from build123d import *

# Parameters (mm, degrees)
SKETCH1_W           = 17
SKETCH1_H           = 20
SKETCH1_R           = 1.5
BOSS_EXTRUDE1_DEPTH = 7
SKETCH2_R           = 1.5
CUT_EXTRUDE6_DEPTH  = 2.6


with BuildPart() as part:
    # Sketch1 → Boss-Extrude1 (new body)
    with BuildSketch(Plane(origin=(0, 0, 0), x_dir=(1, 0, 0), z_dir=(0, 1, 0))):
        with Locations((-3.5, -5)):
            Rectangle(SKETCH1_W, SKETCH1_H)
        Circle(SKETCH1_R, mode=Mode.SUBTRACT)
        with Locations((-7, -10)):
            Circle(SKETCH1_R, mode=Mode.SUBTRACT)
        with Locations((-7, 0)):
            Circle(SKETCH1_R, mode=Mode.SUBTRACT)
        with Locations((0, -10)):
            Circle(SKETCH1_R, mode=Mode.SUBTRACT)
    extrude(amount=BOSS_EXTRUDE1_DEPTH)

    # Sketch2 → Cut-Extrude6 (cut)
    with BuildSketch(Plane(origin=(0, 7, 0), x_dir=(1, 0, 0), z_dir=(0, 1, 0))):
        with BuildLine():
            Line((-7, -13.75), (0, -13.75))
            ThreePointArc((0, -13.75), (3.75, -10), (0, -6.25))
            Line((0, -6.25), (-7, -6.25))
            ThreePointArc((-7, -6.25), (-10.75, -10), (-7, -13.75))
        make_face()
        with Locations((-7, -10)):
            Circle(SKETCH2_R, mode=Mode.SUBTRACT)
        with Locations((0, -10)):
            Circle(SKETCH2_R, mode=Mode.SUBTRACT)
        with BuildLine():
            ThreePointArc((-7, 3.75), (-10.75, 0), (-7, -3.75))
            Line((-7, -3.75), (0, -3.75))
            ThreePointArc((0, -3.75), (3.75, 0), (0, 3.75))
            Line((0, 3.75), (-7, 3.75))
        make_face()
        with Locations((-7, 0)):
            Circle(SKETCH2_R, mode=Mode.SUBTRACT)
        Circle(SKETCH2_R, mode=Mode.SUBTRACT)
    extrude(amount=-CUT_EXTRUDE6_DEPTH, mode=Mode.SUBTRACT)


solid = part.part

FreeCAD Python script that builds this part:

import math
import FreeCAD as App
import Part
import Sketcher
from FreeCAD import Vector

doc = App.newDocument("Part")
body = doc.addObject("PartDesign::Body", "Body")

sketch1 = body.newObject("Sketcher::SketchObject", "Sketch")
sketch1.AttachmentSupport = (doc.getObject("XZ_Plane"), [""])
sketch1.MapMode = "FlatFace"
sketch1.addGeometry([
    Part.LineSegment(Vector(-12, -5, 0), Vector(-12, 15, 0)),
    Part.LineSegment(Vector(-12, 15, 0), Vector(5, 15, 0)),
    Part.LineSegment(Vector(5, 15, 0), Vector(5, -5, 0)),
    Part.LineSegment(Vector(5, -5, 0), Vector(-12, -5, 0)),
    Part.Circle(Vector(-7, 10, 0), Vector(0, 0, 1), 1.5),
    Part.Circle(Vector(0, 10, 0), Vector(0, 0, 1), 1.5),
    Part.Circle(Vector(-7, 0, 0), Vector(0, 0, 1), 1.5),
    Part.Circle(Vector(0, 0, 0), Vector(0, 0, 1), 1.5),
], False)
sketch1.addConstraint([
    Sketcher.Constraint("Coincident", 0, 2, 1, 1),
    Sketcher.Constraint("Coincident", 1, 2, 2, 1),
    Sketcher.Constraint("Coincident", 2, 2, 3, 1),
    Sketcher.Constraint("Coincident", 3, 2, 0, 1),
    Sketcher.Constraint("Vertical", 0),
    Sketcher.Constraint("Horizontal", 1),
    Sketcher.Constraint("Vertical", 2),
    Sketcher.Constraint("Horizontal", 3),
    Sketcher.Constraint("Coincident", 7, 3, -1, 1),
    Sketcher.Constraint("Equal", 4, 5),
    Sketcher.Constraint("Equal", 5, 6),
    Sketcher.Constraint("Equal", 6, 7),
    Sketcher.Constraint("PointOnObject", 5, 3, -2),
    Sketcher.Constraint("PointOnObject", 6, 3, -1),
    Sketcher.Constraint("Horizontal", 4, 3, 5, 3),
    Sketcher.Constraint("Vertical", 4, 3, 6, 3),
    Sketcher.Constraint("Diameter", 4, 3.0),
    Sketcher.Constraint("DistanceX", 1, 1, 1, 2, 17.0),
    Sketcher.Constraint("DistanceY", 0, 1, 0, 2, 20.0),
    Sketcher.Constraint("DistanceX", 4, 3, -1, 1, 7.0),
    Sketcher.Constraint("DistanceY", -1, 1, 4, 3, 10.0),
    Sketcher.Constraint("DistanceX", 0, 2, -1, 1, 12.0),
    Sketcher.Constraint("DistanceY", -1, 1, 0, 2, 15.0),
])
pad1 = body.newObject("PartDesign::Pad", "Pad")
pad1.Profile = sketch1
pad1.Length = 7
pad1.Reversed = True

sketch2 = body.newObject("Sketcher::SketchObject", "Sketch001")
sketch2.AttachmentSupport = (doc.getObject("XZ_Plane"), [""])
sketch2.MapMode = "FlatFace"
sketch2.AttachmentOffset = App.Placement(Vector(0, 0, -7), App.Rotation())
sketch2.addGeometry([
    Part.LineSegment(Vector(-7, 13.8, 0), Vector(0, 13.8, 0)),
    Part.ArcOfCircle(Part.Circle(Vector(0, 10, 0), Vector(0, 0, 1), 3.8), math.radians(-90), math.radians(90)),
    Part.LineSegment(Vector(0, 6.2, 0), Vector(-7, 6.2, 0)),
    Part.ArcOfCircle(Part.Circle(Vector(-7, 10, 0), Vector(0, 0, 1), 3.8), math.radians(90), math.radians(270)),
    Part.Circle(Vector(-7, 10, 0), Vector(0, 0, 1), 1.5),
    Part.Circle(Vector(0, 10, 0), Vector(0, 0, 1), 1.5),
    Part.ArcOfCircle(Part.Circle(Vector(-7, 0, 0), Vector(0, 0, 1), 3.8), math.radians(90), math.radians(270)),
    Part.LineSegment(Vector(-7, 3.8, 0), Vector(0, 3.8, 0)),
    Part.ArcOfCircle(Part.Circle(Vector(0, 0, 0), Vector(0, 0, 1), 3.8), math.radians(-90), math.radians(90)),
    Part.LineSegment(Vector(0, -3.8, 0), Vector(-7, -3.8, 0)),
    Part.Circle(Vector(-7, 0, 0), Vector(0, 0, 1), 1.5),
    Part.Circle(Vector(0, 0, 0), Vector(0, 0, 1), 1.5),
], False)
sketch2.addConstraint([
    Sketcher.Constraint("Tangent", 0, 2, 1, 2),
    Sketcher.Constraint("Tangent", 1, 1, 2, 1),
    Sketcher.Constraint("Tangent", 2, 2, 3, 2),
    Sketcher.Constraint("Tangent", 3, 1, 0, 1),
    Sketcher.Constraint("Tangent", 6, 1, 7, 1),
    Sketcher.Constraint("Tangent", 7, 2, 8, 2),
    Sketcher.Constraint("Tangent", 8, 1, 9, 1),
    Sketcher.Constraint("Tangent", 9, 2, 6, 2),
    Sketcher.Constraint("Horizontal", 0),
    Sketcher.Constraint("Horizontal", 2),
    Sketcher.Constraint("Horizontal", 7),
    Sketcher.Constraint("Horizontal", 9),
    Sketcher.Constraint("Coincident", 8, 3, -1, 1),
    Sketcher.Constraint("Coincident", 11, 3, -1, 1),
    Sketcher.Constraint("Coincident", 4, 3, 3, 3),
    Sketcher.Constraint("Coincident", 5, 3, 1, 3),
    Sketcher.Constraint("Coincident", 10, 3, 6, 3),
    Sketcher.Constraint("Equal", 4, 5),
    Sketcher.Constraint("Equal", 3, 6),
    Sketcher.Constraint("Equal", 5, 10),
    Sketcher.Constraint("Equal", 10, 11),
    Sketcher.Constraint("PointOnObject", 1, 3, -2),
    Sketcher.Constraint("Vertical", 4, 3, 6, 3),
    Sketcher.Constraint("Diameter", 4, 3.0),
    Sketcher.Constraint("DistanceX", 0, 1, 0, 2, 7.0),
    Sketcher.Constraint("Radius", 1, 3.75),
    Sketcher.Constraint("DistanceY", -1, 1, 1, 3, 10.0),
])
pocket1 = body.newObject("PartDesign::Pocket", "Pocket")
pocket1.Profile = sketch2
pocket1.Length = 2.6
pocket1.Reversed = True

doc.recompute()
